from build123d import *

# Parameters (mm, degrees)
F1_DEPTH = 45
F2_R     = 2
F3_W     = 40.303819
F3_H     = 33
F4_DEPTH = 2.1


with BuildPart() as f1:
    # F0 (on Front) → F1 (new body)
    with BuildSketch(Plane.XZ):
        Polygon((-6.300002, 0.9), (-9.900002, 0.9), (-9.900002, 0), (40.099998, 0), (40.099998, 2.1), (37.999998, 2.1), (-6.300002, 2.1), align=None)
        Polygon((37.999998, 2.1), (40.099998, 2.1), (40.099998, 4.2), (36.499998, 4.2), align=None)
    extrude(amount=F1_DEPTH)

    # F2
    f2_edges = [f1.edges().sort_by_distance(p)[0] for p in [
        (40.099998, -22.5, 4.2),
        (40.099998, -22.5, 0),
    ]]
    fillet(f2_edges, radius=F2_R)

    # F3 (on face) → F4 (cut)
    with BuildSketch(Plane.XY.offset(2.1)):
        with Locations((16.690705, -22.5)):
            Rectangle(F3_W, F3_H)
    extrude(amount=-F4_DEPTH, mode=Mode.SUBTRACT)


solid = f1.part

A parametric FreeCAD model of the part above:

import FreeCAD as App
import Part
import Sketcher
Q = App.Units.Quantity


def edges_at(feature, points):
    """Names of the edges that pass closest to the given points."""
    edges = feature.Shape.Edges
    near = lambda p: min(range(len(edges)), key=lambda i: edges[i].distToShape(Part.Vertex(*p))[0])
    return sorted({f"Edge{near(p) + 1}" for p in points})


def add_polygon(sketch, points):
    """Adds a closed chain of lines whose ends are joined by coincident constraints."""
    first, n = sketch.GeometryCount, len(points)
    for a, b in zip(points, points[1:] + points[:1]):
        sketch.addGeometry(Part.LineSegment(App.Vector(*a, 0), App.Vector(*b, 0)), False)
    for i in range(n):
        sketch.addConstraint(Sketcher.Constraint("Coincident", first + i, 2, first + (i + 1) % n, 1))

doc = App.newDocument("Part")
body = doc.addObject("PartDesign::Body", "Body")

# Sketch on XZ plane
sketch1 = body.newObject("Sketcher::SketchObject", "Sketch")
sketch1.AttachmentSupport = (doc.getObject("XZ_Plane"), [""])
sketch1.MapMode = "FlatFace"
add_polygon(sketch1, [(-6.3, 0.9), (-9.9, 0.9), (-9.9, 0), (40.1, 0), (40.1, 4.2), (36.5, 4.2), (38, 2.1), (-6.3, 2.1)])  # lines 0-7
sketch1.addConstraint([
    Sketcher.Constraint("Horizontal", 0),
    Sketcher.Constraint("Vertical", 1),
    Sketcher.Constraint("Horizontal", 2),
    Sketcher.Constraint("Vertical", 3),
    Sketcher.Constraint("Horizontal", 4),
    Sketcher.Constraint("Horizontal", 6),
    Sketcher.Constraint("Vertical", 7),
    Sketcher.Constraint("PointOnObject", 1, 2, -1),
    Sketcher.Constraint("Equal", 0, 4),
    Sketcher.Constraint("DistanceX", 2, 1, 2, 2, Q("50 mm")),
    Sketcher.Constraint("DistanceX", 0, 2, 0, 1, Q("3.6 mm")),
    Sketcher.Constraint("DistanceX", 6, 2, 6, 1, Q("44.3 mm")),
    Sketcher.Constraint("DistanceY", 1, 2, 1, 1, Q("0.9 mm")),
    Sketcher.Constraint("DistanceY", 3, 1, 3, 2, Q("4.2 mm")),
    Sketcher.Constraint("DistanceY", 7, 2, 7, 1, Q("1.2 mm")),
    Sketcher.Constraint("DistanceX", 0, 2, -1, 1, Q("9.900002 mm")),
])
pad1 = body.newObject("PartDesign::Pad", "Pad")
pad1.Profile = sketch1
pad1.Length = 45
doc.recompute()

fillet = body.newObject("PartDesign::Fillet", "Fillet")
fillet.Base = (pad1, edges_at(pad1, [(40.1, -22.5, 4.2), (40.1, -22.5, 0)]))
fillet.Radius = 2

# Sketch on XY plane
sketch2 = body.newObject("Sketcher::SketchObject", "Sketch001")
sketch2.AttachmentSupport = (doc.getObject("XY_Plane"), [""])
sketch2.MapMode = "FlatFace"
sketch2.AttachmentOffset = App.Placement(App.Vector(0, 0, 2.1), App.Rotation())
add_polygon(sketch2, [(-3, -6), (-3, -39), (37, -39), (37, -6)])  # lines 0-3
sketch2.addConstraint([
    Sketcher.Constraint("Vertical", 0),
    Sketcher.Constraint("Horizontal", 1),
    Sketcher.Constraint("Vertical", 2),
    Sketcher.Constraint("Horizontal", 3),
    Sketcher.Constraint("DistanceY", 0, 2, 0, 1, Q("33 mm")),
    Sketcher.Constraint("DistanceY", 0, 2, -1, 1, Q("39 mm")),
    Sketcher.Constraint("DistanceX", 1, 1, 1, 2, Q("40.303819 mm")),
    Sketcher.Constraint("DistanceX", 0, 2, -1, 1, Q("3.461205 mm")),
])
pocket1 = body.newObject("PartDesign::Pocket", "Pocket")
pocket1.Profile = sketch2
pocket1.Length = 2.1

doc.recompute()
